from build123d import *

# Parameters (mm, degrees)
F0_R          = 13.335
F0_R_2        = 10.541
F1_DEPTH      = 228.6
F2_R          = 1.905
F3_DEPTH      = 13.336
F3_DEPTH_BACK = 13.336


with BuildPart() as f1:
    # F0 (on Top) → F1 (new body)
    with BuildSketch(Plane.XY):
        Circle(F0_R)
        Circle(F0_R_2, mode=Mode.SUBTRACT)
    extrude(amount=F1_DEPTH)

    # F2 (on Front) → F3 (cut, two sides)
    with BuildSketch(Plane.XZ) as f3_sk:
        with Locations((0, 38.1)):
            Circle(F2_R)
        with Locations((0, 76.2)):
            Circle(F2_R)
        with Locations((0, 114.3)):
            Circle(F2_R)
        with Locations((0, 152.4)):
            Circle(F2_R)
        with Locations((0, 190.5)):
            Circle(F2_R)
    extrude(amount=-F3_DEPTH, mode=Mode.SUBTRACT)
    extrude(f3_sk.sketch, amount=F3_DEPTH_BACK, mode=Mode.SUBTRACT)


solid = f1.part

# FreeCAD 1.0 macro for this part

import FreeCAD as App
import Part
import Sketcher

V = App.Vector
Q = App.Units.Quantity

doc = App.newDocument("Part")
body = doc.addObject("PartDesign::Body", "Body")

# Sketch on XY plane
sketch1 = body.newObject("Sketcher::SketchObject", "Sketch")
sketch1.AttachmentSupport = (doc.getObject("XY_Plane"), [""])
sketch1.MapMode = "FlatFace"
sketch1.addGeometry(Part.Circle(V(0, 0, 0), V(0, 0, 1), 13), False)
sketch1.addGeometry(Part.Circle(V(0, 0, 0), V(0, 0, 1), 11), False)
sketch1.addConstraint(Sketcher.Constraint("Coincident", 0, 3, -1, 1))
sketch1.addConstraint(Sketcher.Constraint("Coincident", 1, 3, -1, 1))
sketch1.addConstraint(Sketcher.Constraint("Diameter", 0, Q("1.05 in")))
sketch1.addConstraint(Sketcher.Constraint("Diameter", 1, Q("0.83 in")))
pad1 = body.newObject("PartDesign::Pad", "Pad")
pad1.Profile = sketch1
pad1.Length = Q("9 in")

# Sketch on XZ plane
sketch2 = body.newObject("Sketcher::SketchObject", "Sketch001")
sketch2.AttachmentSupport = (doc.getObject("XZ_Plane"), [""])
sketch2.MapMode = "FlatFace"
sketch2.addGeometry(Part.Circle(V(0, 38.1, 0), V(0, 0, 1), 1.9), False)
sketch2.addGeometry(Part.Circle(V(0, 76.2, 0), V(0, 0, 1), 1.9), False)
sketch2.addGeometry(Part.Circle(V(0, 114.3, 0), V(0, 0, 1), 1.9), False)
sketch2.addGeometry(Part.Circle(V(0, 152.4, 0), V(0, 0, 1), 1.9), False)
sketch2.addGeometry(Part.Circle(V(0, 190.5, 0), V(0, 0, 1), 1.9), False)
sketch2.addConstraint(Sketcher.Constraint("Equal", 0, 1))
sketch2.addConstraint(Sketcher.Constraint("Equal", 1, 2))
sketch2.addConstraint(Sketcher.Constraint("Equal", 2, 3))
sketch2.addConstraint(Sketcher.Constraint("Equal", 3, 4))
sketch2.addConstraint(Sketcher.Constraint("PointOnObject", 0, 3, -2))
sketch2.addConstraint(Sketcher.Constraint("PointOnObject", 1, 3, -2))
sketch2.addConstraint(Sketcher.Constraint("PointOnObject", 2, 3, -2))
sketch2.addConstraint(Sketcher.Constraint("PointOnObject", 3, 3, -2))
sketch2.addConstraint(Sketcher.Constraint("PointOnObject", 4, 3, -2))
sketch2.addConstraint(Sketcher.Constraint("Diameter", 0, Q("0.15 in")))
sketch2.addConstraint(Sketcher.Constraint("DistanceY", -1, 1, 1, 3, Q("3 in")))
sketch2.addConstraint(Sketcher.Constraint("DistanceY", -1, 1, 3, 3, Q("6 in")))
sketch2.addConstraint(Sketcher.Constraint("DistanceY", 0, 3, 2, 3, Q("3 in")))
sketch2.addConstraint(Sketcher.Constraint("DistanceY", 2, 3, 4, 3, Q("3 in")))
sketch2.addConstraint(Sketcher.Constraint("DistanceY", -1, 1, 0, 3, Q("1.5 in")))
pocket1 = body.newObject("PartDesign::Pocket", "Pocket")
pocket1.Profile = sketch2
pocket1.Type = "ThroughAll"
pocket1.Midplane = True

doc.recompute()
